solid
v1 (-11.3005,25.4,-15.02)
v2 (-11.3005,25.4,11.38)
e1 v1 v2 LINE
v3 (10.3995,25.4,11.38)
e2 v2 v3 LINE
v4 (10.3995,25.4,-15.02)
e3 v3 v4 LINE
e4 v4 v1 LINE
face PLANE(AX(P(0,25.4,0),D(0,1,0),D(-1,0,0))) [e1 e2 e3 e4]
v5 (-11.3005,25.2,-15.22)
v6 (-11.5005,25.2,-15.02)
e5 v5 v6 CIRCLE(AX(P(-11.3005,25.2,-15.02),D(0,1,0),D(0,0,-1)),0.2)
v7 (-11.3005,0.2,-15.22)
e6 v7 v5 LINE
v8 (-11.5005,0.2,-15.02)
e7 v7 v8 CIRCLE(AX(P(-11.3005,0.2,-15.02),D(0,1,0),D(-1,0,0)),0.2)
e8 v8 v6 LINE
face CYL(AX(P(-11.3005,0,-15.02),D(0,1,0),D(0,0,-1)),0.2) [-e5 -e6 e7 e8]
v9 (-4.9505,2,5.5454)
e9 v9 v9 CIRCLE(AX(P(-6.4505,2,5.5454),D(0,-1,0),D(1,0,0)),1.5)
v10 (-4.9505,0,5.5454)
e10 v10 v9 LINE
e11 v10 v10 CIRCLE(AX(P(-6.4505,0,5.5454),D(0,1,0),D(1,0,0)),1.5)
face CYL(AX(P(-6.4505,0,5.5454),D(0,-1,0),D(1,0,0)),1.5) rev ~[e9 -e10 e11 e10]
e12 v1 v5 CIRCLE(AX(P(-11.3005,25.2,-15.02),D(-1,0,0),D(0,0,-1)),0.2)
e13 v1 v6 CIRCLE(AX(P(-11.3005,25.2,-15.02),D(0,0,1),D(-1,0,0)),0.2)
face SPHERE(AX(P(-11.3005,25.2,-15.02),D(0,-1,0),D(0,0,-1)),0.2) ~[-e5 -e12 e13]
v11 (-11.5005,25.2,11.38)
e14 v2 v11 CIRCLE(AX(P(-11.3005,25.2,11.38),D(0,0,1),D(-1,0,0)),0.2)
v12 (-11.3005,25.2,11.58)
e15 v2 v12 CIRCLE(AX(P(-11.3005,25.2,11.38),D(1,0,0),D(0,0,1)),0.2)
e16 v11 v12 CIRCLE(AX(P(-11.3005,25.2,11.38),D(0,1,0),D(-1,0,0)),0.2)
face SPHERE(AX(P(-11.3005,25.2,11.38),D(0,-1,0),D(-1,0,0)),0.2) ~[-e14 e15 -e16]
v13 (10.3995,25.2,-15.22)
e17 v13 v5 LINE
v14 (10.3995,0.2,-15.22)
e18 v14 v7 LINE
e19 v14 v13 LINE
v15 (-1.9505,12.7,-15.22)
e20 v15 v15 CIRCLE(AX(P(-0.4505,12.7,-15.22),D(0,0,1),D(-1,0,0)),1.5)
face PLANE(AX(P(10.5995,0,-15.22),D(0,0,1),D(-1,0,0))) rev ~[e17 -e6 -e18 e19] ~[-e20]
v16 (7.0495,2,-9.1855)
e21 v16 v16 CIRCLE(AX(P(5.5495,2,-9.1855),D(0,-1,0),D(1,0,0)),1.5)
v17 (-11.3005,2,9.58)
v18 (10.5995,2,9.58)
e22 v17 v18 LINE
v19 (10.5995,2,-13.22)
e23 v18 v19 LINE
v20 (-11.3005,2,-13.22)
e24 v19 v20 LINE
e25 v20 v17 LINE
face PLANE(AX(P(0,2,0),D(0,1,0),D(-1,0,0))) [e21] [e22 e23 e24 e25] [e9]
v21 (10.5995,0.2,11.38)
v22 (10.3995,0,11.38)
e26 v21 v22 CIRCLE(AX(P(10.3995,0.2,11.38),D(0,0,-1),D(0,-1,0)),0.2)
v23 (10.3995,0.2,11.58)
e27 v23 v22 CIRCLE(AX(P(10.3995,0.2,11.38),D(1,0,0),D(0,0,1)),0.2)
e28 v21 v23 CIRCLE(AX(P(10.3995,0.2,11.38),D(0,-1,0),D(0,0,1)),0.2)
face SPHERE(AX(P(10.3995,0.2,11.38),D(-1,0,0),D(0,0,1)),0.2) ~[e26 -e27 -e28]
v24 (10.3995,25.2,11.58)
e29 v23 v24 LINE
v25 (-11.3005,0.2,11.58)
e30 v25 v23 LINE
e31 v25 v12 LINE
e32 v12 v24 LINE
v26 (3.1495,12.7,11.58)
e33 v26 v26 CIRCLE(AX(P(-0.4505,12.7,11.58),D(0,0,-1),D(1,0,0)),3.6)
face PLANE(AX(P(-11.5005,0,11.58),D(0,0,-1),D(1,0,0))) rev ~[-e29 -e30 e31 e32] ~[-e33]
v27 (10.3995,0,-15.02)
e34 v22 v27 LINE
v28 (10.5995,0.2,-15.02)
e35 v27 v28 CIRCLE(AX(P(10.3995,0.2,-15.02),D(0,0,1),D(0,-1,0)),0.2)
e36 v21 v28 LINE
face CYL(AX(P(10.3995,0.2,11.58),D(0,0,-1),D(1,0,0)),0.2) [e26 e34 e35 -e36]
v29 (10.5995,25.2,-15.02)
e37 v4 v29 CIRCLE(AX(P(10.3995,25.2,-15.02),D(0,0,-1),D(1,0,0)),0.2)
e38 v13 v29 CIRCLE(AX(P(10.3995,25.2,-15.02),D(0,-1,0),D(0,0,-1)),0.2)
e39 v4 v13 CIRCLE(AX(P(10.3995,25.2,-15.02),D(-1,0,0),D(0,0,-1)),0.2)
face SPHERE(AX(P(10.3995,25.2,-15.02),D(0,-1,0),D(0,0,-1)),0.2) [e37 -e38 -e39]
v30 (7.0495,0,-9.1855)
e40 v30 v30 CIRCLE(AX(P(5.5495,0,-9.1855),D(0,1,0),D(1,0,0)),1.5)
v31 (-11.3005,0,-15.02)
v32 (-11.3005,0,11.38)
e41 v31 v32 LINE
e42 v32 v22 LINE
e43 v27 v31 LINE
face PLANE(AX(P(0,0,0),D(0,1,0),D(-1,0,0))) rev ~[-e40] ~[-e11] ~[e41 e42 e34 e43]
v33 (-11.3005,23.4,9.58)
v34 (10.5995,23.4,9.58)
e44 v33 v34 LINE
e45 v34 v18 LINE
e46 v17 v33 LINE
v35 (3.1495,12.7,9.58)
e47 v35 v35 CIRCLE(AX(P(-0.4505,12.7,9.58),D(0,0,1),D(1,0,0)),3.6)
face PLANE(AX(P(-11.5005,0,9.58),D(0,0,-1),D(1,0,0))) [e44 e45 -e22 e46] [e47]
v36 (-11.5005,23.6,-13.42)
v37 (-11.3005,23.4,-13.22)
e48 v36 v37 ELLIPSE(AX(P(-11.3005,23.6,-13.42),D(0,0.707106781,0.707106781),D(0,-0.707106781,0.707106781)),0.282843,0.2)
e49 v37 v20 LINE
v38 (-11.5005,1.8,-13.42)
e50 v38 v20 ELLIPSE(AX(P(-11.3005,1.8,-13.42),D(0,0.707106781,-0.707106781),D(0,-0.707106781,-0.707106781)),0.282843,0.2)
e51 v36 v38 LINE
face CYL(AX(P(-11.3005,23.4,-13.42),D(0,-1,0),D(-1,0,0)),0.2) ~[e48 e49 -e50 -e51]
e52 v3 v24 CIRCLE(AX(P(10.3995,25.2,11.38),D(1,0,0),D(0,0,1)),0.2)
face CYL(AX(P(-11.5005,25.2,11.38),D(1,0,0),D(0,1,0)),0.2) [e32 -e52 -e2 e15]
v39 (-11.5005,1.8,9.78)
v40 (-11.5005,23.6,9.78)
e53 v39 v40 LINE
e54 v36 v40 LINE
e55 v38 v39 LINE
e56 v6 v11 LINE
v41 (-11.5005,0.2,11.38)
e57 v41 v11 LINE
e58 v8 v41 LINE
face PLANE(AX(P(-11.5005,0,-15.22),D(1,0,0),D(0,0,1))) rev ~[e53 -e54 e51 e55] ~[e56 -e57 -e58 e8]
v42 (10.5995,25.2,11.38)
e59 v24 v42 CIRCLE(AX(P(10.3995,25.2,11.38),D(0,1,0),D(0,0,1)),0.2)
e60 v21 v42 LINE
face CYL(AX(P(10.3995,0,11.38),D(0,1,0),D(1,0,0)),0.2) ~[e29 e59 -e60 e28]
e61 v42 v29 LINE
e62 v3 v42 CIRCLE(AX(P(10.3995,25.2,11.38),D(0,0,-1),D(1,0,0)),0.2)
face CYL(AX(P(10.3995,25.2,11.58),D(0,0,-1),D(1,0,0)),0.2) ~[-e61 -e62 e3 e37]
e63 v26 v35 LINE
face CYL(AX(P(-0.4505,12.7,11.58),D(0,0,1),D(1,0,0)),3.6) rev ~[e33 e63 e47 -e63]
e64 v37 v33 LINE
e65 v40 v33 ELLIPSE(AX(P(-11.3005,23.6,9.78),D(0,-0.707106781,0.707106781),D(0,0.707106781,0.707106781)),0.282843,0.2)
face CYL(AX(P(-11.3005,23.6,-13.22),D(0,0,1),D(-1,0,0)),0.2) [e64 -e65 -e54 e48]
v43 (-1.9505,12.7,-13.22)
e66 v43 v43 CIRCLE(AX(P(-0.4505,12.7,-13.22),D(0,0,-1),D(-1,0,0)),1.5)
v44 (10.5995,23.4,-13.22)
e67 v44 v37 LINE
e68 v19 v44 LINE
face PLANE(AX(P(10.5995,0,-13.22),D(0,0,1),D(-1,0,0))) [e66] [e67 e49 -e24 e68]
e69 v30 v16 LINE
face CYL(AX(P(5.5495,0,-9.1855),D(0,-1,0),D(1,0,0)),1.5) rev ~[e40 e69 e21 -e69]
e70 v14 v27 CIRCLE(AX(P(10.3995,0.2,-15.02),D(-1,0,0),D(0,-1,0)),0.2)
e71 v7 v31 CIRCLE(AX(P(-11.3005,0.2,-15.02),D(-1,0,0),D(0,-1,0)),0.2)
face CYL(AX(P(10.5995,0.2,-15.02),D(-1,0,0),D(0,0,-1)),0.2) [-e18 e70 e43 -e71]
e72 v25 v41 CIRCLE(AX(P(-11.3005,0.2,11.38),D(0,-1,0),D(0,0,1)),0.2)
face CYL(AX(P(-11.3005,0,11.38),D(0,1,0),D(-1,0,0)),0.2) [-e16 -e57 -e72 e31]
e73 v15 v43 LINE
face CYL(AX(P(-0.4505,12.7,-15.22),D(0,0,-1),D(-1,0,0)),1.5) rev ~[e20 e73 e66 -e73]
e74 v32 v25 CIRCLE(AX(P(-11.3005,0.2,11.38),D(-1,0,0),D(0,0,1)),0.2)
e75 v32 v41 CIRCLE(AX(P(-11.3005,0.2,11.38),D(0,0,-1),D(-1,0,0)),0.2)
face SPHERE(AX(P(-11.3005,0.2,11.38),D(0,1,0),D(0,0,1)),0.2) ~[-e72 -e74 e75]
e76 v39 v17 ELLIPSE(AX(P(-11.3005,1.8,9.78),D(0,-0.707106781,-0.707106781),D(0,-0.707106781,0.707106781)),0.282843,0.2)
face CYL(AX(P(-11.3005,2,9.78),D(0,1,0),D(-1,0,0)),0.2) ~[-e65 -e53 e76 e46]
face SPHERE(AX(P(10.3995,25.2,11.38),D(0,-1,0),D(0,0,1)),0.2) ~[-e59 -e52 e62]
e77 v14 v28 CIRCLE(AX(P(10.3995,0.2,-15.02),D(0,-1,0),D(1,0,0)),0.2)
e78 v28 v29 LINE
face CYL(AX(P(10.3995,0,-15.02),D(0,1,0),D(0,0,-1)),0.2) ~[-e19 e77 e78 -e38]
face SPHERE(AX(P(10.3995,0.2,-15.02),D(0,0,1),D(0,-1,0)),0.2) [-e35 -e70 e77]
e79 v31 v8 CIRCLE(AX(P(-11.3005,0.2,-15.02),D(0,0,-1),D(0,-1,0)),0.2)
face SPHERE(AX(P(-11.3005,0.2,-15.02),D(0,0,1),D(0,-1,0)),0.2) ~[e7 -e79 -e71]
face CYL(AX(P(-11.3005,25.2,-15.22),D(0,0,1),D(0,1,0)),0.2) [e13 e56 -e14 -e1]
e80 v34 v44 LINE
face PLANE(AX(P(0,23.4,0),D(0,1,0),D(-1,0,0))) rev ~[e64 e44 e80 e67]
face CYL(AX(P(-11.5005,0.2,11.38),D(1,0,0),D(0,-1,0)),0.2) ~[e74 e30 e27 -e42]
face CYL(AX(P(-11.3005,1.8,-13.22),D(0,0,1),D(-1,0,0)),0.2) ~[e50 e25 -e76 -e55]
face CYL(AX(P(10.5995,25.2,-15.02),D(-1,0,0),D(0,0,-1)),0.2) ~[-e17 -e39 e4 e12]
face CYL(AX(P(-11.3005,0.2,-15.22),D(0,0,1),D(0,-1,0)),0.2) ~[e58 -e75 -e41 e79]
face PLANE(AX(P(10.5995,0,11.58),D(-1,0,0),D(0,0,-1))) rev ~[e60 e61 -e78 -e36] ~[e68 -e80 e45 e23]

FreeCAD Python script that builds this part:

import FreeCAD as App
import Part
import Sketcher
from FreeCAD import Vector
Q = App.Units.Quantity


def edges_at(feature, points):
    """Names of the edges that pass closest to the given points."""
    edges = feature.Shape.Edges
    near = lambda p: min(range(len(edges)), key=lambda i: edges[i].distToShape(Part.Vertex(*p))[0])
    return sorted({f"Edge{near(p) + 1}" for p in points})


def faces_at(feature, points):
    """Names of the faces that lie closest to the given points."""
    faces = feature.Shape.Faces
    near = lambda p: min(range(len(faces)), key=lambda i: faces[i].distToShape(Part.Vertex(*p))[0])
    return sorted({f"Face{near(p) + 1}" for p in points})

doc = App.newDocument("Part")
body = doc.addObject("PartDesign::Body", "Body")

# Sketch on XZ plane
sketch1 = body.newObject("Sketcher::SketchObject", "Sketch")
sketch1.AttachmentSupport = (doc.getObject("XZ_Plane"), [""])
sketch1.MapMode = "FlatFace"
sketch1.addGeometry([
    Part.LineSegment(Vector(-12, -15, 0), Vector(-12, 12, 0)),
    Part.LineSegment(Vector(-12, 12, 0), Vector(11, 12, 0)),
    Part.LineSegment(Vector(11, 12, 0), Vector(11, -15, 0)),
    Part.LineSegment(Vector(11, -15, 0), Vector(-12, -15, 0)),
], False)
sketch1.addConstraint([
    Sketcher.Constraint("Coincident", 0, 2, 1, 1),
    Sketcher.Constraint("Coincident", 1, 2, 2, 1),
    Sketcher.Constraint("Coincident", 2, 2, 3, 1),
    Sketcher.Constraint("Coincident", 3, 2, 0, 1),
    Sketcher.Constraint("Vertical", 0),
    Sketcher.Constraint("Horizontal", 1),
    Sketcher.Constraint("Vertical", 2),
    Sketcher.Constraint("Horizontal", 3),
    Sketcher.Constraint("DistanceX", 1, 1, 1, 2, Q("22.1 mm")),
    Sketcher.Constraint("DistanceY", 0, 1, 0, 2, Q("26.8 mm")),
    Sketcher.Constraint("DistanceY", -1, 1, 0, 2, Q("11.58 mm")),
    Sketcher.Constraint("DistanceX", 0, 2, -1, 1, Q("11.5005 mm")),
])
pad1 = body.newObject("PartDesign::Pad", "Pad")
pad1.Profile = sketch1
pad1.Length = 25.4
pad1.Reversed = True
doc.recompute()

thickness = body.newObject("PartDesign::Thickness", "Thickness")
thickness.Base = (pad1, faces_at(pad1, [(-11.501, 8.467, -6.287), (10.6, 8.467, 2.647)]))
thickness.Value = 2
thickness.Reversed = True
thickness.Join = "Intersection"

# Sketch on XZ plane
sketch2 = body.newObject("Sketcher::SketchObject", "Sketch001")
sketch2.AttachmentSupport = (doc.getObject("XZ_Plane"), [""])
sketch2.MapMode = "FlatFace"
sketch2.addGeometry([
    Part.Circle(Vector(-6.5, 5.5, 0), Vector(0, 0, 1), 1.5),
    Part.Circle(Vector(5.5, -9.2, 0), Vector(0, 0, 1), 1.5),
], False)
sketch2.addConstraint([
    Sketcher.Constraint("Equal", 0, 1),
    Sketcher.Constraint("Diameter", 0, Q("3 mm")),
    Sketcher.Constraint("DistanceX", 0, 3, 1, 3, Q("12 mm")),
    Sketcher.Constraint("DistanceY", 1, 3, 0, 3, Q("14.731 mm")),
    Sketcher.Constraint("DistanceX", 0, 3, -1, 1, Q("6.4505 mm")),
    Sketcher.Constraint("DistanceY", -1, 1, 0, 3, Q("5.5454 mm")),
])
pocket1 = body.newObject("PartDesign::Pocket", "Pocket")
pocket1.Profile = sketch2
pocket1.Type = "UpToFirst"

# Sketch on XY plane
sketch3 = body.newObject("Sketcher::SketchObject", "Sketch002")
sketch3.AttachmentSupport = (doc.getObject("XY_Plane"), [""])
sketch3.MapMode = "FlatFace"
sketch3.AttachmentOffset = App.Placement(Vector(0, 0, 11.58), App.Rotation())
sketch3.addGeometry(Part.Circle(Vector(-0.5, 12.7, 0), Vector(0, 0, 1), 3.6), False)
sketch3.addConstraint([
    Sketcher.Constraint("Diameter", 0, Q("7.2 mm")),
    Sketcher.Constraint("DistanceY", -1, 1, 0, 3, Q("12.7 mm")),
    Sketcher.Constraint("DistanceX", 0, 3, -1, 1, Q("0.4505 mm")),
])
pocket2 = body.newObject("PartDesign::Pocket", "Pocket001")
pocket2.Profile = sketch3
pocket2.Type = "UpToFirst"

# Sketch on XY plane
sketch4 = body.newObject("Sketcher::SketchObject", "Sketch003")
sketch4.AttachmentSupport = (doc.getObject("XY_Plane"), [""])
sketch4.MapMode = "FlatFace"
sketch4.AttachmentOffset = App.Placement(Vector(0, 0, -15.22), App.Rotation())
sketch4.addGeometry(Part.Circle(Vector(-0.5, 12.7, 0), Vector(0, 0, 1), 1.5), False)
sketch4.addConstraint([
    Sketcher.Constraint("Diameter", 0, Q("3 mm")),
    Sketcher.Constraint("DistanceY", -1, 1, 0, 3, Q("12.7 mm")),
    Sketcher.Constraint("DistanceX", 0, 3, -1, 1, Q("0.4505 mm")),
])
pocket3 = body.newObject("PartDesign::Pocket", "Pocket002")
pocket3.Profile = sketch4
pocket3.Type = "UpToFirst"
pocket3.Reversed = True
doc.recompute()

fillet = body.newObject("PartDesign::Fillet", "Fillet")
fillet.Base = (pocket3, edges_at(pocket3, [
    (-11.501, 12.7, 11.58),
    (-0.451, 0, 11.58),
    (10.6, 12.7, 11.58),
    (10.6, 0, -1.82),
    (-11.501, 0, -1.82),
    (-0.451, 0, -15.22),
    (10.6, 12.7, -15.22),
    (-11.501, 12.7, -15.22),
    (-0.451, 25.4, -15.22),
    (-11.501, 25.4, -1.82),
    (-0.451, 25.4, 11.58),
    (10.6, 25.4, -1.82),
    (-11.501, 12.7, -13.22),
    (-11.501, 2, -1.82),
    (-11.501, 12.7, 9.58),
    (-11.501, 23.4, -1.82),
]))
fillet.Radius = 0.2

doc.recompute()
